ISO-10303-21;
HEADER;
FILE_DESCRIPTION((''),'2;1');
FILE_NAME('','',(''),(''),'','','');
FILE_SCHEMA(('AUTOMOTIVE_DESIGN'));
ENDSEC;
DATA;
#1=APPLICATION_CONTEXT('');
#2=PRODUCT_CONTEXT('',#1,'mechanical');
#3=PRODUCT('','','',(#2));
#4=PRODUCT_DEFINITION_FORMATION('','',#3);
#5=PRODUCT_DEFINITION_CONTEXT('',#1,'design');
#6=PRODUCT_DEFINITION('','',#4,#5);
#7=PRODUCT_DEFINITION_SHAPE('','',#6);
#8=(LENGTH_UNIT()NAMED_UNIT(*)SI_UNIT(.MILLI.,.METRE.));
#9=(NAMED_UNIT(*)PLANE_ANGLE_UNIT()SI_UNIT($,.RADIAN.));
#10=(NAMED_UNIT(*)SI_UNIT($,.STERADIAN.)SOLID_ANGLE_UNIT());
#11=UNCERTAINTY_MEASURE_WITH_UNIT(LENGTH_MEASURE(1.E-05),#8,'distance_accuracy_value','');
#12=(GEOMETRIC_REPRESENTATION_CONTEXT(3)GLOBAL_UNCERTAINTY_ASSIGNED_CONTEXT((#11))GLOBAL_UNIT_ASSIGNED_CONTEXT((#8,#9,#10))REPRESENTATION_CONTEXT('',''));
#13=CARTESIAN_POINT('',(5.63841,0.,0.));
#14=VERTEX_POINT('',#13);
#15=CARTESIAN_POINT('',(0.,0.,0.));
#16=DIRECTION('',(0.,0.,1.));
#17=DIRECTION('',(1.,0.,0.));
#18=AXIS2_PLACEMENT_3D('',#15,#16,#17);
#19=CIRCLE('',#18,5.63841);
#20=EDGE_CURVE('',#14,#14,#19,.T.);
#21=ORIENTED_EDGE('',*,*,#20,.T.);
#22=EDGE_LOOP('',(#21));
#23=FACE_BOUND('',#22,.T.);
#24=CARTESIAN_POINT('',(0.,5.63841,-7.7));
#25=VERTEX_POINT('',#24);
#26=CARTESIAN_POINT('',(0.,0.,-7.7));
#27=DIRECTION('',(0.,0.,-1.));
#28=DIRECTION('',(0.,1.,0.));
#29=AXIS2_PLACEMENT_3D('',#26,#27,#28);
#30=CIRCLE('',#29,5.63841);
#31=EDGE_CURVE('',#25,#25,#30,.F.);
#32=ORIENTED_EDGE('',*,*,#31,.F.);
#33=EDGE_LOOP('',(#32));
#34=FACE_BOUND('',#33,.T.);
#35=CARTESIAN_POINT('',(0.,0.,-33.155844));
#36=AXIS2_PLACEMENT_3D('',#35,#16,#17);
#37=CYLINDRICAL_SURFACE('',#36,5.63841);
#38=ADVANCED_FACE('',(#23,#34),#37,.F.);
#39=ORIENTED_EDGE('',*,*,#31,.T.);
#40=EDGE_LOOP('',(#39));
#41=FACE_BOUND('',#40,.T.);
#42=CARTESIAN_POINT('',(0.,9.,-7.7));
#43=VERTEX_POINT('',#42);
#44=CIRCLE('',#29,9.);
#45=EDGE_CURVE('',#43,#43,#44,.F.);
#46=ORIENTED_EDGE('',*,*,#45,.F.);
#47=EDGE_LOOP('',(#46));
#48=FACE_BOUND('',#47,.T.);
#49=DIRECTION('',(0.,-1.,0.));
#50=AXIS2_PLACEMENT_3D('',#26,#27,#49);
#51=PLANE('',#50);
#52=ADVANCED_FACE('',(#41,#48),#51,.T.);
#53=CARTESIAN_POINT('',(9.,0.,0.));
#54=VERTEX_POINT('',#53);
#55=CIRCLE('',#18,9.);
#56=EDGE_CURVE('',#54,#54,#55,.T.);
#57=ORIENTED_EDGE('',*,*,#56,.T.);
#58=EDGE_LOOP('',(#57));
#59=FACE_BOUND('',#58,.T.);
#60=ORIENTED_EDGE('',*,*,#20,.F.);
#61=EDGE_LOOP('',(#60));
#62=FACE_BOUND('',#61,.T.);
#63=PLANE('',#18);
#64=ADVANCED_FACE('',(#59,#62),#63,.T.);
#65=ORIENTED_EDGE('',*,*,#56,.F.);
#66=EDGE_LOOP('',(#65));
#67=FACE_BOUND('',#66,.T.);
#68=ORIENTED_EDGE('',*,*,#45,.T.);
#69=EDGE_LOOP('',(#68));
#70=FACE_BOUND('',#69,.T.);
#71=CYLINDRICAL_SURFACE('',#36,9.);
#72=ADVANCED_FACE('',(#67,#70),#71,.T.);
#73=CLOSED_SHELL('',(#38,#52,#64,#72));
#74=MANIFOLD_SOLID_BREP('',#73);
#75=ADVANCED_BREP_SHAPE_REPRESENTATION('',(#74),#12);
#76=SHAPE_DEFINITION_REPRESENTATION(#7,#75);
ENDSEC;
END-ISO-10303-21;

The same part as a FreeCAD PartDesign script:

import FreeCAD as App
import Part
import Sketcher

doc = App.newDocument("Part")
body = doc.addObject("PartDesign::Body", "Body")

# Sketch on XY plane
sketch1 = body.newObject("Sketcher::SketchObject", "Sketch")
sketch1.AttachmentSupport = (doc.getObject("XY_Plane"), [""])
sketch1.MapMode = "FlatFace"
sketch1.addGeometry(Part.Circle(App.Vector(0, 0, 0), App.Vector(0, 0, 1), 9), False)
sketch1.addGeometry(Part.Circle(App.Vector(0, 0, 0), App.Vector(0, 0, 1), 5.63841), False)
sketch1.addConstraint(Sketcher.Constraint("Coincident", 0, 3, -1, 1))
sketch1.addConstraint(Sketcher.Constraint("Coincident", 1, 3, -1, 1))
sketch1.addConstraint(Sketcher.Constraint("Diameter", 0, 18.0))
sketch1.addConstraint(Sketcher.Constraint("Diameter", 1, 11.27682))
pad1 = body.newObject("PartDesign::Pad", "Pad")
pad1.Profile = sketch1
pad1.Length = 7.7
pad1.Reversed = True

doc.recompute()
